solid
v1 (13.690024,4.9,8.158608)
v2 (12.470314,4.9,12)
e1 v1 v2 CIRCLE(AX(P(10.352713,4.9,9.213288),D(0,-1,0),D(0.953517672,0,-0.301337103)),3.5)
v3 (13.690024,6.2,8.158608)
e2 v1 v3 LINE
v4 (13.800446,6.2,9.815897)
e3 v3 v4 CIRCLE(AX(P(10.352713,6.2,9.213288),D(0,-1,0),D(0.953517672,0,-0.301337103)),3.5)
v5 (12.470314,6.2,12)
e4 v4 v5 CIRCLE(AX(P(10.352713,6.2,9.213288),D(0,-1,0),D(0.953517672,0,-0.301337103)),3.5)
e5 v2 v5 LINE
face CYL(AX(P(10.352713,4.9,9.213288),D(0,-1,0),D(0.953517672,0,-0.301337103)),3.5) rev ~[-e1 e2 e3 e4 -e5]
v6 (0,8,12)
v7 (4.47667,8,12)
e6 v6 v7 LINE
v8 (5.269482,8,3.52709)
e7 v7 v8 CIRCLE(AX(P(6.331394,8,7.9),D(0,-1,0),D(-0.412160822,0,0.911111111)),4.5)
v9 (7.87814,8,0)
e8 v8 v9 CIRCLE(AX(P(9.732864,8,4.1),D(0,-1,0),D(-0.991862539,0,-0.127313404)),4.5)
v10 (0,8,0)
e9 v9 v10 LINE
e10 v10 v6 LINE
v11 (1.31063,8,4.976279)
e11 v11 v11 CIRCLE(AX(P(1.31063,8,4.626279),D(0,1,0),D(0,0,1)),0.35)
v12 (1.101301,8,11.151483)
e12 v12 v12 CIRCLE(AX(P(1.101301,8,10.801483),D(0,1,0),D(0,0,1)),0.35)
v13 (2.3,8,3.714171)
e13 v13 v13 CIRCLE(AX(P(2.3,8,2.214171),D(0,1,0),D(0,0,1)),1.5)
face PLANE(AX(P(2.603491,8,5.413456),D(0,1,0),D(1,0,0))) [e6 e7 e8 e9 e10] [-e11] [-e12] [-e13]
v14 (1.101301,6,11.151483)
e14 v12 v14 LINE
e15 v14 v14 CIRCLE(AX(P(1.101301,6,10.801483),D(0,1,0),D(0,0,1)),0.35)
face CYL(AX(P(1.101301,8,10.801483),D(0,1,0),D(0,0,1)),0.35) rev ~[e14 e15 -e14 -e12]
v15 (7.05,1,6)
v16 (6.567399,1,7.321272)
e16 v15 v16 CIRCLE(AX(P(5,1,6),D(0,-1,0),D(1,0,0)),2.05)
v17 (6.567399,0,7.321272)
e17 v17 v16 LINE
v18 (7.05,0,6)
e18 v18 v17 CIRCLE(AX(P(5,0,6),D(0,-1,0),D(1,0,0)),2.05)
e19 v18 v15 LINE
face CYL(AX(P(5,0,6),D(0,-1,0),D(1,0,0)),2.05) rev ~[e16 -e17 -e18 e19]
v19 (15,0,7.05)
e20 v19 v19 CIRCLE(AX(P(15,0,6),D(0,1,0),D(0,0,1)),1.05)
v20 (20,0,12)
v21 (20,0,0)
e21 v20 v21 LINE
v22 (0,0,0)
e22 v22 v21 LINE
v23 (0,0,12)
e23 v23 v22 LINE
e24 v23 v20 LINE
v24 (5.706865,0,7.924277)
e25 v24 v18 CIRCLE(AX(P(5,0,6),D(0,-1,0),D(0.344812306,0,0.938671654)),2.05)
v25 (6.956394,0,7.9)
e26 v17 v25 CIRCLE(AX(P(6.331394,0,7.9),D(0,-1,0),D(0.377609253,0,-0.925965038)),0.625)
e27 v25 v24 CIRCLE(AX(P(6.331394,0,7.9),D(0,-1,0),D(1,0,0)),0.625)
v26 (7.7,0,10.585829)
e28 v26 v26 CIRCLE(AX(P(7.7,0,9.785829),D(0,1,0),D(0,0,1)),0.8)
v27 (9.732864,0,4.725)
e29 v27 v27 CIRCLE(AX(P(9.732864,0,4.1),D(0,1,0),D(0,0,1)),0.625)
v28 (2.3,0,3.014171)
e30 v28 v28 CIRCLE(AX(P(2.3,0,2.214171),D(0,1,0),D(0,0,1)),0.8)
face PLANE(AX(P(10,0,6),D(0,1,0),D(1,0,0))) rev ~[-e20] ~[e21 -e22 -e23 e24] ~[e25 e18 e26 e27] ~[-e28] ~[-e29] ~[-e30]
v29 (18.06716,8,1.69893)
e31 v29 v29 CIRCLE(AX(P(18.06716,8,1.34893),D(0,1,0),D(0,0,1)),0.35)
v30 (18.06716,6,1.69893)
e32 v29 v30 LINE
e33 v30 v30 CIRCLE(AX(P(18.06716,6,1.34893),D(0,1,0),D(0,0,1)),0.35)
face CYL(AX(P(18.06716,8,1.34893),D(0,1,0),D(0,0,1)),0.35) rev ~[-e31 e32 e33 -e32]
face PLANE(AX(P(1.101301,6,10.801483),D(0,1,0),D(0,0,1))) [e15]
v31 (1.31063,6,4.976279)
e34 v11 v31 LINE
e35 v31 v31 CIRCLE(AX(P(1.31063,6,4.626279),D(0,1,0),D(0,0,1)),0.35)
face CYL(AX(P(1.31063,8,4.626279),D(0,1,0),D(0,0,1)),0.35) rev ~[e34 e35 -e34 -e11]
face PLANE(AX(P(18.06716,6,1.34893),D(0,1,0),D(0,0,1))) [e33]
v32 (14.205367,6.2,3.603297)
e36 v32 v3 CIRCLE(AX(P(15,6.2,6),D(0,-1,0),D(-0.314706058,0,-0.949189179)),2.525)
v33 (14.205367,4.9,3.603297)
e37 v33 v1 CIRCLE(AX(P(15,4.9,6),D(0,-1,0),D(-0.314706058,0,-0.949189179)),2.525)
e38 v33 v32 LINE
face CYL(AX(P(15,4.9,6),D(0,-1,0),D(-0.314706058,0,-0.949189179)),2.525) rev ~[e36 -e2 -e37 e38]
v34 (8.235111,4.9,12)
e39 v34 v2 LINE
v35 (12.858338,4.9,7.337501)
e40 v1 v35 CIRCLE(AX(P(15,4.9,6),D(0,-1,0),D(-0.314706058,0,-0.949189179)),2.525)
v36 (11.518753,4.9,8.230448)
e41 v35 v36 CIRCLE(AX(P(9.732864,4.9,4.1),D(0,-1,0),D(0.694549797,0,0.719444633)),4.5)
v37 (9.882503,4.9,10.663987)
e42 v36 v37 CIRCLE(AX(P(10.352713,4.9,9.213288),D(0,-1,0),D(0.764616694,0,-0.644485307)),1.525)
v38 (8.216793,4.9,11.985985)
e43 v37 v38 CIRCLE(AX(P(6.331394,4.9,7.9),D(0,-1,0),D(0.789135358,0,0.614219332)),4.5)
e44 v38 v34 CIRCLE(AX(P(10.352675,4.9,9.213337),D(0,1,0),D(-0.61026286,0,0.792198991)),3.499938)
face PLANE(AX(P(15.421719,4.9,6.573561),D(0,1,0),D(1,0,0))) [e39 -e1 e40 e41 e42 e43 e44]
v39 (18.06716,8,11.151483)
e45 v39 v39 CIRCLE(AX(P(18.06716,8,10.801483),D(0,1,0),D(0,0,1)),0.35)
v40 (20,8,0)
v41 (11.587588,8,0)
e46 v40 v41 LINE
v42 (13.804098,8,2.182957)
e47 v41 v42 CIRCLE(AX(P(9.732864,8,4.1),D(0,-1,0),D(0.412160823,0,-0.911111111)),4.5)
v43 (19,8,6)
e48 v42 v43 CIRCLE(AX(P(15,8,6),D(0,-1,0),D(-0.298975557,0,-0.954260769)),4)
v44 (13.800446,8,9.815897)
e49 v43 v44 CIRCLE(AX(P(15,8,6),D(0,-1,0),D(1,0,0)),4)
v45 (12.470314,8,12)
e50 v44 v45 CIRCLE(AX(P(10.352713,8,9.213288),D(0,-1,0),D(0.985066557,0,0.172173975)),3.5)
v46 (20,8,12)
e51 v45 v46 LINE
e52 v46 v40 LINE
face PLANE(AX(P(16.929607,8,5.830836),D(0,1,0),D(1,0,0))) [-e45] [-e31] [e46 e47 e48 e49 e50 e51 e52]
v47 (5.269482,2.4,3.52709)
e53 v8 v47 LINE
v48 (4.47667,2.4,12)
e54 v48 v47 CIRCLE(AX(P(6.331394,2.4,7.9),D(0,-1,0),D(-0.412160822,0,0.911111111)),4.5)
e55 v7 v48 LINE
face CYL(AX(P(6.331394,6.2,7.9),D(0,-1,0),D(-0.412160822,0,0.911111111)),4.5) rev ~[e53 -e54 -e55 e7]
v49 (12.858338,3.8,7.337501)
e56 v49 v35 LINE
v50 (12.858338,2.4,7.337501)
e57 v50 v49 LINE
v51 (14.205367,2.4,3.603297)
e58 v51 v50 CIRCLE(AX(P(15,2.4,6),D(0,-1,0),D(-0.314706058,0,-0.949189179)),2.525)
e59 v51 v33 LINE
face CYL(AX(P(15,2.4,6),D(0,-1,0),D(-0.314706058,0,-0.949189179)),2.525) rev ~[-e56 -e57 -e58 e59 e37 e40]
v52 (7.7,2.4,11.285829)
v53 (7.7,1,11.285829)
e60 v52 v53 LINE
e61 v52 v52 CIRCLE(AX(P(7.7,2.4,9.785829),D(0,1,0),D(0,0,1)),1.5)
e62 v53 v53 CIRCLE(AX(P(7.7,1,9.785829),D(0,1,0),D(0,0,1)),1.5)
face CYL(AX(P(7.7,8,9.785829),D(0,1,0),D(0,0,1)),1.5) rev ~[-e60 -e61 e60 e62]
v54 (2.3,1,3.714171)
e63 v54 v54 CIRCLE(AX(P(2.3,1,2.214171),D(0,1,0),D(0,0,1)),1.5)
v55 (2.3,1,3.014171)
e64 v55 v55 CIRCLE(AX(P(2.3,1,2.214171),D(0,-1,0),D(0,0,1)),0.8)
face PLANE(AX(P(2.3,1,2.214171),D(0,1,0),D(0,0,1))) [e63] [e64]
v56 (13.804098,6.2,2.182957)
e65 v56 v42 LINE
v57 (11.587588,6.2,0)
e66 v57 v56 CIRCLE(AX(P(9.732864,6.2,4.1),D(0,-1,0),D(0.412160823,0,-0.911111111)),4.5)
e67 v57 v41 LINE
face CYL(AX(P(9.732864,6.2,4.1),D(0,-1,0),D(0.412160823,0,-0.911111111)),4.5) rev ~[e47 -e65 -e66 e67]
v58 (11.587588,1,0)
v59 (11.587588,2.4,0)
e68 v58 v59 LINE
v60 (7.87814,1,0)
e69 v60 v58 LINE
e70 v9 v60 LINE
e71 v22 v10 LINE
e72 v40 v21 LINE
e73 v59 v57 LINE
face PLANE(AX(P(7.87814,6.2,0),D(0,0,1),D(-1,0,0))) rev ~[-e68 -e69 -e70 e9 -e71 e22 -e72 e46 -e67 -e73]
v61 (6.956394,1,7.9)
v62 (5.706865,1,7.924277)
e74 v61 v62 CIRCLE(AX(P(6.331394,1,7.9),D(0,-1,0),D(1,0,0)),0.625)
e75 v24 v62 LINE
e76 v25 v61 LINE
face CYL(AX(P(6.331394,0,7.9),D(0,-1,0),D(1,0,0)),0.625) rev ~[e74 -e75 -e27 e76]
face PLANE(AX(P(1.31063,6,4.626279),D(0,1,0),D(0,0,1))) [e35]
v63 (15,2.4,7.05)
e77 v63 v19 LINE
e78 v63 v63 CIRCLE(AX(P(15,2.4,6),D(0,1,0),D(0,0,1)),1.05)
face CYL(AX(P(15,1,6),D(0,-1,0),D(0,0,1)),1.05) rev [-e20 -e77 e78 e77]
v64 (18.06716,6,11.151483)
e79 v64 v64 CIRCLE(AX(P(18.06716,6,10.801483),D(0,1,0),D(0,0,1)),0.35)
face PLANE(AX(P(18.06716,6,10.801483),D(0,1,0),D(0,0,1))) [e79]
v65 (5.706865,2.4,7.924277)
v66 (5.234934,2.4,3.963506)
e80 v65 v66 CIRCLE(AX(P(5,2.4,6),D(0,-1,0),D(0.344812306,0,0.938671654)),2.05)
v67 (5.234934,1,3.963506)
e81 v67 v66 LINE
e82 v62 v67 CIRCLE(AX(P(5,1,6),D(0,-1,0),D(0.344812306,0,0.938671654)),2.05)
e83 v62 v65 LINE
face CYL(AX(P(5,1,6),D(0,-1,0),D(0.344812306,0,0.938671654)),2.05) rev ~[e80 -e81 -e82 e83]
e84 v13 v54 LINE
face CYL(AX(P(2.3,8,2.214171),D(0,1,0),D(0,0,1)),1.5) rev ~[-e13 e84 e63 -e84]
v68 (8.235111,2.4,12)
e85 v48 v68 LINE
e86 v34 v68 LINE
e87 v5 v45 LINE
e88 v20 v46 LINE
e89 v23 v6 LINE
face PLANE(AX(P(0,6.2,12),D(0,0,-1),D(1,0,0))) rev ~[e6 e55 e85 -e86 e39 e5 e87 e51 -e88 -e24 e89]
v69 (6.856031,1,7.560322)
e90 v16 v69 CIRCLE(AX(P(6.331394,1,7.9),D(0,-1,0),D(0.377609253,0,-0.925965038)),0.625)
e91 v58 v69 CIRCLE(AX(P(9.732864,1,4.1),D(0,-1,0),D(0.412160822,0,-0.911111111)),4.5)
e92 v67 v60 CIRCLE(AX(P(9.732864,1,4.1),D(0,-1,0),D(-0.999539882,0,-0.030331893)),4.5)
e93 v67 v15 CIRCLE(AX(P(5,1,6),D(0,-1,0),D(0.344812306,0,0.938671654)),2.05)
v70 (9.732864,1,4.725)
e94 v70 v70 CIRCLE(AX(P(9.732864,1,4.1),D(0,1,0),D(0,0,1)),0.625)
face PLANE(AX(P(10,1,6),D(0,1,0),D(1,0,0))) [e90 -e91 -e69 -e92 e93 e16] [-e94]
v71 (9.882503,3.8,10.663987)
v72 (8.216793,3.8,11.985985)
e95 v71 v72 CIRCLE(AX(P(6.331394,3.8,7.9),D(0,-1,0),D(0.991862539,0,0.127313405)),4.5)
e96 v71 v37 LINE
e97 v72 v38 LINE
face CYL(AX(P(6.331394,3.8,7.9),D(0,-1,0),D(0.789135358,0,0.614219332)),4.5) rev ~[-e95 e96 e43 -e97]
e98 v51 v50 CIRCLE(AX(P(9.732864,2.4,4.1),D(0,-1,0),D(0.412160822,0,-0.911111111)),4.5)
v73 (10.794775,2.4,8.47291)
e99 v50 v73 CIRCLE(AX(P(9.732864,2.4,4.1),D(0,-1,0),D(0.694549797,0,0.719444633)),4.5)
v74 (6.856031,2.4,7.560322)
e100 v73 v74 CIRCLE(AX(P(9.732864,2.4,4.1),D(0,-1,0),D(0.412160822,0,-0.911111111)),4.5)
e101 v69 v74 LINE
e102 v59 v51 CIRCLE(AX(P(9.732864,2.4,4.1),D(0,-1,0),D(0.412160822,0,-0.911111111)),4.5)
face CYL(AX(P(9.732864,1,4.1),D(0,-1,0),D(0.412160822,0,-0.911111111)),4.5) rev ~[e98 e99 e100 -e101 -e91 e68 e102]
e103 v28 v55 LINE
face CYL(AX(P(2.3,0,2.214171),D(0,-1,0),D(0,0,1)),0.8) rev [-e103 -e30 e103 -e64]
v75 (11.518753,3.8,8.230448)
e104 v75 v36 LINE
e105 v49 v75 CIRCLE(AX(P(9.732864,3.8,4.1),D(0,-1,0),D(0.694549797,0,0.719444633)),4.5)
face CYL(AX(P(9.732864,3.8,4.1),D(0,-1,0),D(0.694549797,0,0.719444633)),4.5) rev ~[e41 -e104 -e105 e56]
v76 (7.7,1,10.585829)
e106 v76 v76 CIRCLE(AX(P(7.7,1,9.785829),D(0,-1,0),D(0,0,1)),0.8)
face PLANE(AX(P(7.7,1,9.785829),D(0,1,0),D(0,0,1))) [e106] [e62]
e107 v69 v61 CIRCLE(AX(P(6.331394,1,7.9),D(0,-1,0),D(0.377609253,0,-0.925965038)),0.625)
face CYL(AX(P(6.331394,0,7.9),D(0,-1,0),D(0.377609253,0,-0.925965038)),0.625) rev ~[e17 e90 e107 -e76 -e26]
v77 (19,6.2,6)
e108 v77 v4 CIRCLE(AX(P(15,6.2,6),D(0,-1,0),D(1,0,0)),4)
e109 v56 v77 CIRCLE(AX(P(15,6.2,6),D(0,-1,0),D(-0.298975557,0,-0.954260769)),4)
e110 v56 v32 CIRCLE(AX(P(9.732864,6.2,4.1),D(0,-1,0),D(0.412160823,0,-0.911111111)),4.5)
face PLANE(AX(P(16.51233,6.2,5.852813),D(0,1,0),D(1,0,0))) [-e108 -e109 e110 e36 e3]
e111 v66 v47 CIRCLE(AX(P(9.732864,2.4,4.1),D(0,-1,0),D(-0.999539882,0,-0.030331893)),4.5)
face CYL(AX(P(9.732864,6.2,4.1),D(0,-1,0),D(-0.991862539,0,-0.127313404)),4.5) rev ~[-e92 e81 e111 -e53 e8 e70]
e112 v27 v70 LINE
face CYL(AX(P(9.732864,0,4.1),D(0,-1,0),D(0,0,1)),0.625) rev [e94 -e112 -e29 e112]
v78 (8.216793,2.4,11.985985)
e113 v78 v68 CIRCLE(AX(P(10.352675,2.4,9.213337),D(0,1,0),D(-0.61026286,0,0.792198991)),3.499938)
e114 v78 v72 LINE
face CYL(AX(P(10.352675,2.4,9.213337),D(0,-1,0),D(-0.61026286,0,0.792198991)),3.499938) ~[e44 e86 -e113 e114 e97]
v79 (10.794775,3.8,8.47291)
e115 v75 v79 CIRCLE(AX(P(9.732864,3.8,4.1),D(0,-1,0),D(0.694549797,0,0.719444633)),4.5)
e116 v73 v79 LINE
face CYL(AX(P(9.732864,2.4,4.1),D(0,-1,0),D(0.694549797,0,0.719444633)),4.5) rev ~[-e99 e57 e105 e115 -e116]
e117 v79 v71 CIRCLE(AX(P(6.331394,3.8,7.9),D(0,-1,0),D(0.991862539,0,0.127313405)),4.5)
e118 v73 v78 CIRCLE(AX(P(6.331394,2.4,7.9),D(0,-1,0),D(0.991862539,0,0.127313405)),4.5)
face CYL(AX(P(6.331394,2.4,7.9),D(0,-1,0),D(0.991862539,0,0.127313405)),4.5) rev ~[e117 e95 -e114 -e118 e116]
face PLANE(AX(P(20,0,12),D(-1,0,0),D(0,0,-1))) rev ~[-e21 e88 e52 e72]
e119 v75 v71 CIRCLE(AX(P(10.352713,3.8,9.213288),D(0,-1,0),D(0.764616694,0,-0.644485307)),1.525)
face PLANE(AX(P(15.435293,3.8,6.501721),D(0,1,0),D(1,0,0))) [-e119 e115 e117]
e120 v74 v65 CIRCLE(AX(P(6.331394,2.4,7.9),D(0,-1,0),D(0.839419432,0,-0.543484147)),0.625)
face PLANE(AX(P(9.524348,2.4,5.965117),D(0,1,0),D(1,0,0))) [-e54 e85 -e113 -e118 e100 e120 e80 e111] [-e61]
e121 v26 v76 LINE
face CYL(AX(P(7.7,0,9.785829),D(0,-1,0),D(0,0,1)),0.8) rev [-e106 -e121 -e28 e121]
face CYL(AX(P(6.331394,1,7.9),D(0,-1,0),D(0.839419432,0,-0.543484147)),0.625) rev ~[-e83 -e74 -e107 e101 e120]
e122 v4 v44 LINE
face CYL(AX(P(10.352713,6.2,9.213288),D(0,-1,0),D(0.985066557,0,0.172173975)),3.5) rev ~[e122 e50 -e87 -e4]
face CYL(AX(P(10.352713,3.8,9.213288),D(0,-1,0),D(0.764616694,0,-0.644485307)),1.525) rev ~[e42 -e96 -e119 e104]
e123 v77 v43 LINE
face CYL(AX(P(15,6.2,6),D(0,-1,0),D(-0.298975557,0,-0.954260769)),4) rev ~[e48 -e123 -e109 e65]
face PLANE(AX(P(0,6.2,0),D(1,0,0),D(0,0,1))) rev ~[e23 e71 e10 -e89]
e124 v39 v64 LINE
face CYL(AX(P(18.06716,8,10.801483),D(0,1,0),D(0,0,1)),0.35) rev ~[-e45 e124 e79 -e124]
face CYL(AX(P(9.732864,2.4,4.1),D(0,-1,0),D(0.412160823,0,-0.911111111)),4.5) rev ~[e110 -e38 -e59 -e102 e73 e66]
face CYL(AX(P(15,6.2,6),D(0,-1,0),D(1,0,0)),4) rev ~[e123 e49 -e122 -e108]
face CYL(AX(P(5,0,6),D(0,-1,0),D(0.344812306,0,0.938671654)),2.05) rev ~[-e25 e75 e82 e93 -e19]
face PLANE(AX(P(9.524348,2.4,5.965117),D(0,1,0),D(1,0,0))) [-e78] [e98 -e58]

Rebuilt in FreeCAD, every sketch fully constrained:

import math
import FreeCAD as App
import Part
import Sketcher
from FreeCAD import Vector


def add_polygon(sketch, points):
    """Adds a closed chain of lines whose ends are joined by coincident constraints."""
    first, n = sketch.GeometryCount, len(points)
    for a, b in zip(points, points[1:] + points[:1]):
        sketch.addGeometry(Part.LineSegment(App.Vector(*a, 0), App.Vector(*b, 0)), False)
    for i in range(n):
        sketch.addConstraint(Sketcher.Constraint("Coincident", first + i, 2, first + (i + 1) % n, 1))

doc = App.newDocument("Part")
body = doc.addObject("PartDesign::Body", "Body")

sketch1 = body.newObject("Sketcher::SketchObject", "Sketch")
sketch1.AttachmentSupport = (doc.getObject("XZ_Plane"), [""])
sketch1.MapMode = "FlatFace"
add_polygon(sketch1, [(0, 0), (0, 12), (20, 12), (20, 0)])
sketch1.addGeometry(Part.ArcOfCircle(Part.Circle(Vector(6.3, 7.9, 0), Vector(0, 0, 1), 0.6), math.radians(0), math.radians(178)), False)
sketch1.addGeometry(Part.ArcOfCircle(Part.Circle(Vector(5, 6, 0), Vector(0, 0, 1), 2), math.radians(70), math.radians(360)), False)
sketch1.addGeometry(Part.ArcOfCircle(Part.Circle(Vector(5, 6, 0), Vector(0, 0, 1), 2.1), math.radians(0), math.radians(40)), False)
sketch1.addGeometry(Part.ArcOfCircle(Part.Circle(Vector(6.3, 7.9, 0), Vector(0, 0, 1), 0.6), math.radians(-68), math.radians(0)), False)
sketch1.addGeometry(Part.Circle(Vector(15, 6, 0), Vector(0, 0, 1), 1.1), False)
sketch1.addGeometry(Part.Circle(Vector(9.7, 4.1, 0), Vector(0, 0, 1), 0.6), False)
sketch1.addConstraint([
    Sketcher.Constraint("Coincident", 4, 2, 5, 1),
    Sketcher.Constraint("Tangent", 5, 2, 6, 1),
    Sketcher.Constraint("Coincident", 6, 2, 7, 1),
    Sketcher.Constraint("Tangent", 7, 2, 4, 1),
    Sketcher.Constraint("Vertical", 0),
    Sketcher.Constraint("Horizontal", 1),
    Sketcher.Constraint("Vertical", 2),
    Sketcher.Constraint("Horizontal", 3),
    Sketcher.Constraint("Coincident", 3, 2, -1, 1),
    Sketcher.Constraint("Equal", 5, 6),
    Sketcher.Constraint("Equal", 4, 7),
    Sketcher.Constraint("Equal", 7, 9),
    Sketcher.Constraint("Horizontal", 6, 3, 8, 3),
    Sketcher.Constraint("Horizontal", 8, 3, 5, 2),
    Sketcher.Constraint("Horizontal", 4, 3, 7, 2),
    Sketcher.Constraint("Diameter", 8, 2.1),
    Sketcher.Constraint("Diameter", 9, 1.25),
    Sketcher.Constraint("DistanceX", 1, 1, 1, 2, 20.0),
    Sketcher.Constraint("DistanceY", 0, 1, 0, 2, 12.0),
    Sketcher.Constraint("Radius", 5, 2.05),
    Sketcher.Constraint("DistanceX", -1, 1, 5, 3, 5.0),
    Sketcher.Constraint("DistanceY", -1, 1, 5, 3, 6.0),
    Sketcher.Constraint("DistanceX", -1, 1, 8, 3, 15.0),
    Sketcher.Constraint("DistanceY", -1, 1, 4, 3, 7.9),
    Sketcher.Constraint("DistanceY", -1, 1, 9, 3, 4.1),
    Sketcher.Constraint("DistanceX", 4, 2, 9, 3, 4.025999),
    Sketcher.Constraint("DistanceX", -1, 1, 6, 2, 6.567399),
])
pad1 = body.newObject("PartDesign::Pad", "Pad")
pad1.Profile = sketch1
pad1.Length = 1
pad1.Reversed = True

sketch2 = body.newObject("Sketcher::SketchObject", "Sketch001")
sketch2.AttachmentSupport = (doc.getObject("XZ_Plane"), [""])
sketch2.MapMode = "FlatFace"
sketch2.AttachmentOffset = App.Placement(Vector(0, 0, -1), App.Rotation())
sketch2.addGeometry([
    Part.LineSegment(Vector(7.9, 0, 0), Vector(0, 0, 0)),
    Part.LineSegment(Vector(0, 0, 0), Vector(0, 12, 0)),
    Part.LineSegment(Vector(0, 12, 0), Vector(20, 12, 0)),
    Part.LineSegment(Vector(20, 12, 0), Vector(20, 0, 0)),
    Part.LineSegment(Vector(20, 0, 0), Vector(11.6, 0, 0)),
    Part.ArcOfCircle(Part.Circle(Vector(9.7, 4.1, 0), Vector(0, 0, 1), 4.5), math.radians(-66), math.radians(130)),
    Part.ArcOfCircle(Part.Circle(Vector(6.3, 7.9, 0), Vector(0, 0, 1), 0.6), math.radians(-33), math.radians(178)),
    Part.ArcOfCircle(Part.Circle(Vector(5, 6, 0), Vector(0, 0, 1), 2), math.radians(70), math.radians(277)),
    Part.ArcOfCircle(Part.Circle(Vector(9.7, 4.1, 0), Vector(0, 0, 1), 4.5), math.radians(-178), math.radians(-114)),
    Part.Circle(Vector(15, 6, 0), Vector(0, 0, 1), 1.1),
], False)
sketch2.addConstraint([
    Sketcher.Constraint("Coincident", 0, 2, 1, 1),
    Sketcher.Constraint("Coincident", 1, 2, 2, 1),
    Sketcher.Constraint("Coincident", 2, 2, 3, 1),
    Sketcher.Constraint("Coincident", 3, 2, 4, 1),
    Sketcher.Constraint("Coincident", 4, 2, 5, 1),
    Sketcher.Constraint("Coincident", 5, 2, 6, 1),
    Sketcher.Constraint("Coincident", 6, 2, 7, 1),
    Sketcher.Constraint("Coincident", 7, 2, 8, 1),
    Sketcher.Constraint("Coincident", 8, 2, 0, 1),
    Sketcher.Constraint("Horizontal", 0),
    Sketcher.Constraint("Vertical", 1),
    Sketcher.Constraint("Horizontal", 2),
    Sketcher.Constraint("Vertical", 3),
    Sketcher.Constraint("Horizontal", 4),
    Sketcher.Constraint("Coincident", 0, 2, -1, 1),
    Sketcher.Constraint("Coincident", 8, 3, 5, 3),
    Sketcher.Constraint("Equal", 5, 8),
    Sketcher.Constraint("PointOnObject", 3, 2, -1),
    Sketcher.Constraint("Horizontal", 7, 3, 9, 3),
    Sketcher.Constraint("Diameter", 9, 2.1),
    Sketcher.Constraint("Radius", 5, 4.5),
    Sketcher.Constraint("DistanceX", 2, 1, 2, 2, 20.0),
    Sketcher.Constraint("DistanceY", 1, 1, 1, 2, 12.0),
    Sketcher.Constraint("Radius", 7, 2.05),
    Sketcher.Constraint("DistanceX", -1, 1, 7, 3, 5.0),
    Sketcher.Constraint("DistanceY", -1, 1, 7, 3, 6.0),
    Sketcher.Constraint("DistanceX", -1, 1, 9, 3, 15.0),
    Sketcher.Constraint("Radius", 6, 0.625),
    Sketcher.Constraint("DistanceY", -1, 1, 5, 3, 4.1),
    Sketcher.Constraint("DistanceY", -1, 1, 6, 3, 7.9),
    Sketcher.Constraint("DistanceX", 6, 2, 5, 3, 4.025999),
    Sketcher.Constraint("DistanceX", 0, 2, 0, 1, 7.87814),
])
pad2 = body.newObject("PartDesign::Pad", "Pad001")
pad2.Profile = sketch2
pad2.Length = 1.4
pad2.Reversed = True

sketch3 = body.newObject("Sketcher::SketchObject", "Sketch002")
sketch3.AttachmentSupport = (doc.getObject("XZ_Plane"), [""])
sketch3.MapMode = "FlatFace"
sketch3.AttachmentOffset = App.Placement(Vector(0, 0, -2.4), App.Rotation())
sketch3.addGeometry([
    Part.LineSegment(Vector(7.878, 0, 0), Vector(0, 0, 0)),
    Part.LineSegment(Vector(0, 0, 0), Vector(0, 12, 0)),
    Part.LineSegment(Vector(0, 12, 0), Vector(4.477, 12, 0)),
    Part.ArcOfCircle(Part.Circle(Vector(6.331, 7.9, 0), Vector(0, 0, 1), 4.5), math.radians(114), math.radians(256)),
    Part.ArcOfCircle(Part.Circle(Vector(9.733, 4.1, 0), Vector(0, 0, 1), 4.5), math.radians(-173), math.radians(-114)),
    Part.LineSegment(Vector(20, 0, 0), Vector(11.588, 0, 0)),
    Part.ArcOfCircle(Part.Circle(Vector(9.733, 4.1, 0), Vector(0, 0, 1), 4.5), math.radians(-66), math.radians(-6)),
    Part.ArcOfCircle(Part.Circle(Vector(15, 6, 0), Vector(0, 0, 1), 2.525), math.radians(-108), math.radians(148)),
    Part.ArcOfCircle(Part.Circle(Vector(9.733, 4.1, 0), Vector(0, 0, 1), 4.5), math.radians(46), math.radians(76)),
    Part.ArcOfCircle(Part.Circle(Vector(6.331, 7.9, 0), Vector(0, 0, 1), 4.5), math.radians(7), math.radians(65)),
    Part.ArcOfCircle(Part.Circle(Vector(10.353, 9.213, 0), Vector(0, 0, 1), 3.5), math.radians(127.23), math.radians(127.61)),
    Part.LineSegment(Vector(8.235, 12, 0), Vector(20, 12, 0)),
    Part.LineSegment(Vector(20, 12, 0), Vector(20, 0, 0)),
], False)
sketch3.addConstraint([
    Sketcher.Constraint("Coincident", 0, 2, 1, 1),
    Sketcher.Constraint("Coincident", 1, 2, 2, 1),
    Sketcher.Constraint("Coincident", 2, 2, 3, 1),
    Sketcher.Constraint("Coincident", 3, 2, 4, 1),
    Sketcher.Constraint("Coincident", 4, 2, 0, 1),
    Sketcher.Constraint("Coincident", 5, 2, 6, 1),
    Sketcher.Constraint("Coincident", 6, 2, 7, 1),
    Sketcher.Constraint("Coincident", 7, 2, 8, 1),
    Sketcher.Constraint("Coincident", 8, 2, 9, 1),
    Sketcher.Constraint("Coincident", 9, 2, 10, 2),
    Sketcher.Constraint("Coincident", 10, 1, 11, 1),
    Sketcher.Constraint("Coincident", 11, 2, 12, 1),
    Sketcher.Constraint("Coincident", 12, 2, 5, 1),
    Sketcher.Constraint("Horizontal", 0),
    Sketcher.Constraint("Vertical", 1),
    Sketcher.Constraint("Horizontal", 2),
    Sketcher.Constraint("Horizontal", 5),
    Sketcher.Constraint("Horizontal", 11),
    Sketcher.Constraint("Vertical", 12),
    Sketcher.Constraint("Coincident", 0, 2, -1, 1),
    Sketcher.Constraint("Coincident", 6, 3, 4, 3),
    Sketcher.Constraint("Coincident", 8, 3, 4, 3),
    Sketcher.Constraint("Coincident", 9, 3, 3, 3),
    Sketcher.Constraint("Equal", 3, 4),
    Sketcher.Constraint("Equal", 4, 6),
    Sketcher.Constraint("Equal", 6, 8),
    Sketcher.Constraint("Equal", 8, 9),
    Sketcher.Constraint("PointOnObject", 5, 2, -1),
    Sketcher.Constraint("Horizontal", 2, 2, 10, 1),
    Sketcher.Constraint("Radius", 3, 4.5),
    Sketcher.Constraint("DistanceY", 1, 1, 1, 2, 12.0),
    Sketcher.Constraint("DistanceX", -1, 1, 7, 3, 15.0),
    Sketcher.Constraint("DistanceY", -1, 1, 7, 3, 6.0),
    Sketcher.Constraint("DistanceX", -1, 1, 11, 2, 20.0),
    Sketcher.Constraint("Radius", 7, 2.525),
    Sketcher.Constraint("DistanceY", -1, 1, 3, 3, 7.9),
    Sketcher.Constraint("DistanceY", -1, 1, 4, 3, 4.1),
    Sketcher.Constraint("Radius", 10, 3.499938),
    Sketcher.Constraint("DistanceX", 0, 2, 0, 1, 7.87814),
    Sketcher.Constraint("DistanceX", 2, 1, 2, 2, 4.47667),
    Sketcher.Constraint("DistanceX", 11, 1, 11, 2, 11.764889),
    Sketcher.Constraint("DistanceX", 10, 3, 8, 2, 0.4421),
])
pad3 = body.newObject("PartDesign::Pad", "Pad002")
pad3.Profile = sketch3
pad3.Length = 1.4
pad3.Reversed = True

sketch4 = body.newObject("Sketcher::SketchObject", "Sketch003")
sketch4.AttachmentSupport = (doc.getObject("XZ_Plane"), [""])
sketch4.MapMode = "FlatFace"
sketch4.AttachmentOffset = App.Placement(Vector(0, 0, -3.8), App.Rotation())
sketch4.addGeometry([
    Part.LineSegment(Vector(7.878, 0, 0), Vector(0, 0, 0)),
    Part.LineSegment(Vector(0, 0, 0), Vector(0, 12, 0)),
    Part.LineSegment(Vector(0, 12, 0), Vector(4.477, 12, 0)),
    Part.ArcOfCircle(Part.Circle(Vector(6.331, 7.9, 0), Vector(0, 0, 1), 4.5), math.radians(114), math.radians(256)),
    Part.ArcOfCircle(Part.Circle(Vector(9.733, 4.1, 0), Vector(0, 0, 1), 4.5), math.radians(-173), math.radians(-114)),
    Part.LineSegment(Vector(20, 0, 0), Vector(11.588, 0, 0)),
    Part.ArcOfCircle(Part.Circle(Vector(9.733, 4.1, 0), Vector(0, 0, 1), 4.5), math.radians(-66), math.radians(-6)),
    Part.ArcOfCircle(Part.Circle(Vector(15, 6, 0), Vector(0, 0, 1), 2.525), math.radians(-108), math.radians(148)),
    Part.ArcOfCircle(Part.Circle(Vector(9.733, 4.1, 0), Vector(0, 0, 1), 4.5), math.radians(46), math.radians(67)),
    Part.ArcOfCircle(Part.Circle(Vector(10.353, 9.213, 0), Vector(0, 0, 1), 1.525), math.radians(-40), math.radians(108)),
    Part.ArcOfCircle(Part.Circle(Vector(6.331, 7.9, 0), Vector(0, 0, 1), 4.5), math.radians(38), math.radians(65)),
    Part.ArcOfCircle(Part.Circle(Vector(10.353, 9.213, 0), Vector(0, 0, 1), 3.5), math.radians(127.23), math.radians(127.61)),
    Part.LineSegment(Vector(8.235, 12, 0), Vector(20, 12, 0)),
    Part.LineSegment(Vector(20, 12, 0), Vector(20, 0, 0)),
], False)
sketch4.addConstraint([
    Sketcher.Constraint("Coincident", 0, 2, 1, 1),
    Sketcher.Constraint("Coincident", 1, 2, 2, 1),
    Sketcher.Constraint("Coincident", 2, 2, 3, 1),
    Sketcher.Constraint("Coincident", 3, 2, 4, 1),
    Sketcher.Constraint("Coincident", 4, 2, 0, 1),
    Sketcher.Constraint("Coincident", 5, 2, 6, 1),
    Sketcher.Constraint("Coincident", 6, 2, 7, 1),
    Sketcher.Constraint("Coincident", 7, 2, 8, 1),
    Sketcher.Constraint("Coincident", 8, 2, 9, 1),
    Sketcher.Constraint("Coincident", 9, 2, 10, 1),
    Sketcher.Constraint("Coincident", 10, 2, 11, 2),
    Sketcher.Constraint("Coincident", 11, 1, 12, 1),
    Sketcher.Constraint("Coincident", 12, 2, 13, 1),
    Sketcher.Constraint("Coincident", 13, 2, 5, 1),
    Sketcher.Constraint("Horizontal", 0),
    Sketcher.Constraint("Vertical", 1),
    Sketcher.Constraint("Horizontal", 2),
    Sketcher.Constraint("Horizontal", 5),
    Sketcher.Constraint("Horizontal", 12),
    Sketcher.Constraint("Vertical", 13),
    Sketcher.Constraint("Coincident", 0, 2, -1, 1),
    Sketcher.Constraint("Coincident", 6, 3, 4, 3),
    Sketcher.Constraint("Coincident", 8, 3, 4, 3),
    Sketcher.Constraint("Coincident", 10, 3, 3, 3),
    Sketcher.Constraint("Equal", 3, 4),
    Sketcher.Constraint("Equal", 4, 6),
    Sketcher.Constraint("Equal", 6, 8),
    Sketcher.Constraint("Equal", 8, 10),
    Sketcher.Constraint("PointOnObject", 5, 2, -1),
    Sketcher.Constraint("Horizontal", 2, 2, 11, 1),
    Sketcher.Constraint("Radius", 3, 4.5),
    Sketcher.Constraint("DistanceY", 1, 1, 1, 2, 12.0),
    Sketcher.Constraint("DistanceX", -1, 1, 7, 3, 15.0),
    Sketcher.Constraint("DistanceY", -1, 1, 7, 3, 6.0),
    Sketcher.Constraint("DistanceX", -1, 1, 12, 2, 20.0),
    Sketcher.Constraint("Radius", 7, 2.525),
    Sketcher.Constraint("Radius", 9, 1.525),
    Sketcher.Constraint("DistanceY", -1, 1, 3, 3, 7.9),
    Sketcher.Constraint("DistanceY", -1, 1, 4, 3, 4.1),
    Sketcher.Constraint("Radius", 11, 3.499938),
    Sketcher.Constraint("DistanceX", 0, 2, 0, 1, 7.87814),
    Sketcher.Constraint("DistanceX", 2, 1, 2, 2, 4.47667),
    Sketcher.Constraint("DistanceX", 12, 1, 12, 2, 11.764889),
    Sketcher.Constraint("DistanceY", 9, 3, 9, 2, 1.450699),
    Sketcher.Constraint("DistanceX", 11, 1, 9, 3, 2.117601),
    Sketcher.Constraint("DistanceX", 10, 3, 11, 3, 4.021281),
])
pad4 = body.newObject("PartDesign::Pad", "Pad003")
pad4.Profile = sketch4
pad4.Length = 1.1
pad4.Reversed = True

sketch5 = body.newObject("Sketcher::SketchObject", "Sketch004")
sketch5.AttachmentSupport = (doc.getObject("XZ_Plane"), [""])
sketch5.MapMode = "FlatFace"
sketch5.AttachmentOffset = App.Placement(Vector(0, 0, -4.9), App.Rotation())
sketch5.addGeometry([
    Part.LineSegment(Vector(7.9, 0, 0), Vector(0, 0, 0)),
    Part.LineSegment(Vector(0, 0, 0), Vector(0, 12, 0)),
    Part.LineSegment(Vector(0, 12, 0), Vector(4.5, 12, 0)),
    Part.ArcOfCircle(Part.Circle(Vector(6.3, 7.9, 0), Vector(0, 0, 1), 4.5), math.radians(114), math.radians(256)),
    Part.ArcOfCircle(Part.Circle(Vector(9.7, 4.1, 0), Vector(0, 0, 1), 4.5), math.radians(-173), math.radians(-114)),
    Part.LineSegment(Vector(20, 0, 0), Vector(11.6, 0, 0)),
    Part.ArcOfCircle(Part.Circle(Vector(9.7, 4.1, 0), Vector(0, 0, 1), 4.5), math.radians(-66), math.radians(-6)),
    Part.ArcOfCircle(Part.Circle(Vector(15, 6, 0), Vector(0, 0, 1), 2.5), math.radians(-108), math.radians(121)),
    Part.ArcOfCircle(Part.Circle(Vector(10.4, 9.2, 0), Vector(0, 0, 1), 3.5), math.radians(-18), math.radians(53)),
    Part.LineSegment(Vector(12.5, 12, 0), Vector(20, 12, 0)),
    Part.LineSegment(Vector(20, 12, 0), Vector(20, 0, 0)),
], False)
sketch5.addConstraint([
    Sketcher.Constraint("Coincident", 0, 2, 1, 1),
    Sketcher.Constraint("Coincident", 1, 2, 2, 1),
    Sketcher.Constraint("Coincident", 2, 2, 3, 1),
    Sketcher.Constraint("Coincident", 3, 2, 4, 1),
    Sketcher.Constraint("Coincident", 4, 2, 0, 1),
    Sketcher.Constraint("Coincident", 5, 2, 6, 1),
    Sketcher.Constraint("Coincident", 6, 2, 7, 1),
    Sketcher.Constraint("Coincident", 7, 2, 8, 1),
    Sketcher.Constraint("Coincident", 8, 2, 9, 1),
    Sketcher.Constraint("Coincident", 9, 2, 10, 1),
    Sketcher.Constraint("Coincident", 10, 2, 5, 1),
    Sketcher.Constraint("Horizontal", 0),
    Sketcher.Constraint("Vertical", 1),
    Sketcher.Constraint("Horizontal", 2),
    Sketcher.Constraint("Horizontal", 5),
    Sketcher.Constraint("Horizontal", 9),
    Sketcher.Constraint("Vertical", 10),
    Sketcher.Constraint("Coincident", 0, 2, -1, 1),
    Sketcher.Constraint("Coincident", 6, 3, 4, 3),
    Sketcher.Constraint("Equal", 3, 4),
    Sketcher.Constraint("Equal", 4, 6),
    Sketcher.Constraint("PointOnObject", 5, 2, -1),
    Sketcher.Constraint("Horizontal", 2, 2, 8, 2),
    Sketcher.Constraint("Radius", 3, 4.5),
    Sketcher.Constraint("Radius", 8, 3.5),
    Sketcher.Constraint("DistanceY", 1, 1, 1, 2, 12.0),
    Sketcher.Constraint("DistanceX", -1, 1, 7, 3, 15.0),
    Sketcher.Constraint("DistanceY", -1, 1, 7, 3, 6.0),
    Sketcher.Constraint("DistanceX", -1, 1, 9, 2, 20.0),
    Sketcher.Constraint("Radius", 7, 2.525),
    Sketcher.Constraint("DistanceY", -1, 1, 3, 3, 7.9),
    Sketcher.Constraint("DistanceY", -1, 1, 4, 3, 4.1),
    Sketcher.Constraint("DistanceX", 0, 2, 0, 1, 7.87814),
    Sketcher.Constraint("DistanceX", 2, 1, 2, 2, 4.47667),
    Sketcher.Constraint("DistanceY", 3, 2, 8, 3, 5.686198),
    Sketcher.Constraint("DistanceX", 9, 1, 9, 2, 7.529686),
])
pad5 = body.newObject("PartDesign::Pad", "Pad004")
pad5.Profile = sketch5
pad5.Length = 1.3
pad5.Reversed = True

sketch6 = body.newObject("Sketcher::SketchObject", "Sketch005")
sketch6.AttachmentSupport = (doc.getObject("XZ_Plane"), [""])
sketch6.MapMode = "FlatFace"
sketch6.AttachmentOffset = App.Placement(Vector(0, 0, -6.2), App.Rotation())
sketch6.addGeometry([
    Part.LineSegment(Vector(7.9, 0, 0), Vector(0, 0, 0)),
    Part.LineSegment(Vector(0, 0, 0), Vector(0, 12, 0)),
    Part.LineSegment(Vector(0, 12, 0), Vector(4.5, 12, 0)),
    Part.ArcOfCircle(Part.Circle(Vector(6.3, 7.9, 0), Vector(0, 0, 1), 4.5), math.radians(114), math.radians(256)),
    Part.ArcOfCircle(Part.Circle(Vector(9.7, 4.1, 0), Vector(0, 0, 1), 4.5), math.radians(-173), math.radians(-114)),
    Part.LineSegment(Vector(20, 0, 0), Vector(11.6, 0, 0)),
    Part.ArcOfCircle(Part.Circle(Vector(9.7, 4.1, 0), Vector(0, 0, 1), 4.5), math.radians(-66), math.radians(-25)),
    Part.ArcOfCircle(Part.Circle(Vector(15, 6, 0), Vector(0, 0, 1), 4), math.radians(-107), math.radians(0)),
    Part.ArcOfCircle(Part.Circle(Vector(15, 6, 0), Vector(0, 0, 1), 4), math.radians(0), math.radians(107)),
    Part.ArcOfCircle(Part.Circle(Vector(10.4, 9.2, 0), Vector(0, 0, 1), 3.5), math.radians(10), math.radians(53)),
    Part.LineSegment(Vector(12.5, 12, 0), Vector(20, 12, 0)),
    Part.LineSegment(Vector(20, 12, 0), Vector(20, 0, 0)),
], False)
sketch6.addConstraint([
    Sketcher.Constraint("Coincident", 0, 2, 1, 1),
    Sketcher.Constraint("Coincident", 1, 2, 2, 1),
    Sketcher.Constraint("Coincident", 2, 2, 3, 1),
    Sketcher.Constraint("Coincident", 3, 2, 4, 1),
    Sketcher.Constraint("Coincident", 4, 2, 0, 1),
    Sketcher.Constraint("Coincident", 5, 2, 6, 1),
    Sketcher.Constraint("Coincident", 6, 2, 7, 1),
    Sketcher.Constraint("Tangent", 7, 2, 8, 1),
    Sketcher.Constraint("Coincident", 8, 2, 9, 1),
    Sketcher.Constraint("Coincident", 9, 2, 10, 1),
    Sketcher.Constraint("Coincident", 10, 2, 11, 1),
    Sketcher.Constraint("Coincident", 11, 2, 5, 1),
    Sketcher.Constraint("Horizontal", 0),
    Sketcher.Constraint("Vertical", 1),
    Sketcher.Constraint("Horizontal", 2),
    Sketcher.Constraint("Horizontal", 5),
    Sketcher.Constraint("Horizontal", 10),
    Sketcher.Constraint("Vertical", 11),
    Sketcher.Constraint("Coincident", 0, 2, -1, 1),
    Sketcher.Constraint("Coincident", 6, 3, 4, 3),
    Sketcher.Constraint("Equal", 3, 4),
    Sketcher.Constraint("Equal", 4, 6),
    Sketcher.Constraint("Equal", 7, 8),
    Sketcher.Constraint("PointOnObject", 5, 2, -1),
    Sketcher.Constraint("Horizontal", 8, 3, 7, 2),
    Sketcher.Constraint("Horizontal", 2, 2, 9, 2),
    Sketcher.Constraint("Radius", 7, 4.0),
    Sketcher.Constraint("Radius", 3, 4.5),
    Sketcher.Constraint("Radius", 9, 3.5),
    Sketcher.Constraint("DistanceY", 1, 1, 1, 2, 12.0),
    Sketcher.Constraint("DistanceX", -1, 1, 7, 3, 15.0),
    Sketcher.Constraint("DistanceY", -1, 1, 7, 3, 6.0),
    Sketcher.Constraint("DistanceX", -1, 1, 10, 2, 20.0),
    Sketcher.Constraint("DistanceY", -1, 1, 3, 3, 7.9),
    Sketcher.Constraint("DistanceY", -1, 1, 4, 3, 4.1),
    Sketcher.Constraint("DistanceX", 0, 2, 0, 1, 7.87814),
    Sketcher.Constraint("DistanceX", 2, 1, 2, 2, 4.47667),
    Sketcher.Constraint("DistanceY", 3, 2, 9, 3, 5.686198),
    Sketcher.Constraint("DistanceX", 10, 1, 10, 2, 7.529686),
])
pad6 = body.newObject("PartDesign::Pad", "Pad005")
pad6.Profile = sketch6
pad6.Length = 1.8
pad6.Reversed = True

sketch7 = body.newObject("Sketcher::SketchObject", "Sketch006")
sketch7.AttachmentSupport = (doc.getObject("XZ_Plane"), [""])
sketch7.MapMode = "FlatFace"
sketch7.addGeometry([
    Part.Circle(Vector(2.3, 2.2, 0), Vector(0, 0, 1), 0.8),
    Part.Circle(Vector(7.7, 9.8, 0), Vector(0, 0, 1), 0.8),
], False)
sketch7.addConstraint([
    Sketcher.Constraint("Equal", 0, 1),
    Sketcher.Constraint("Diameter", 0, 1.6),
    Sketcher.Constraint("DistanceX", -1, 1, 0, 3, 2.3),
    Sketcher.Constraint("DistanceX", -1, 1, 1, 3, 7.7),
    Sketcher.Constraint("DistanceY", -1, 1, 0, 3, 2.214171),
    Sketcher.Constraint("DistanceY", -1, 1, 1, 3, 9.785829),
])
pocket1 = body.newObject("PartDesign::Pocket", "Pocket")
pocket1.Profile = sketch7
pocket1.Type = "ThroughAll"

sketch8 = body.newObject("Sketcher::SketchObject", "Sketch007")
sketch8.AttachmentSupport = (doc.getObject("XZ_Plane"), [""])
sketch8.MapMode = "FlatFace"
sketch8.AttachmentOffset = App.Placement(Vector(0, 0, -8), App.Rotation())
sketch8.addGeometry([
    Part.Circle(Vector(2.3, 2.2, 0), Vector(0, 0, 1), 1.5),
    Part.Circle(Vector(7.7, 9.8, 0), Vector(0, 0, 1), 1.5),
], False)
sketch8.addConstraint([
    Sketcher.Constraint("Equal", 0, 1),
    Sketcher.Constraint("Diameter", 0, 3.0),
    Sketcher.Constraint("DistanceX", -1, 1, 0, 3, 2.3),
    Sketcher.Constraint("DistanceX", -1, 1, 1, 3, 7.7),
    Sketcher.Constraint("DistanceY", -1, 1, 0, 3, 2.214171),
    Sketcher.Constraint("DistanceY", -1, 1, 1, 3, 9.785829),
])
pocket2 = body.newObject("PartDesign::Pocket", "Pocket001")
pocket2.Profile = sketch8
pocket2.Length = 7
pocket2.Reversed = True

sketch9 = body.newObject("Sketcher::SketchObject", "Sketch008")
sketch9.AttachmentSupport = (doc.getObject("XZ_Plane"), [""])
sketch9.MapMode = "FlatFace"
sketch9.AttachmentOffset = App.Placement(Vector(0, 0, -8), App.Rotation())
sketch9.addGeometry([
    Part.Circle(Vector(18.07, 1.35, 0), Vector(0, 0, 1), 0.35),
    Part.Circle(Vector(18.07, 10.8, 0), Vector(0, 0, 1), 0.35),
    Part.Circle(Vector(1.31, 4.63, 0), Vector(0, 0, 1), 0.35),
    Part.Circle(Vector(1.1, 10.8, 0), Vector(0, 0, 1), 0.35),
], False)
sketch9.addConstraint([
    Sketcher.Constraint("Equal", 0, 1),
    Sketcher.Constraint("Equal", 1, 2),
    Sketcher.Constraint("Equal", 2, 3),
    Sketcher.Constraint("Horizontal", 1, 3, 3, 3),
    Sketcher.Constraint("Vertical", 0, 3, 1, 3),
    Sketcher.Constraint("Diameter", 0, 0.7),
    Sketcher.Constraint("DistanceX", -1, 1, 3, 3, 1.101301),
    Sketcher.Constraint("DistanceX", -1, 1, 0, 3, 18.06716),
    Sketcher.Constraint("DistanceY", -1, 1, 0, 3, 1.34893),
    Sketcher.Constraint("DistanceX", -1, 1, 2, 3, 1.31063),
    Sketcher.Constraint("DistanceY", -1, 1, 2, 3, 4.626279),
    Sketcher.Constraint("DistanceY", -1, 1, 1, 3, 10.801483),
])
pocket3 = body.newObject("PartDesign::Pocket", "Pocket002")
pocket3.Profile = sketch9
pocket3.Length = 2
pocket3.Reversed = True

doc.recompute()
